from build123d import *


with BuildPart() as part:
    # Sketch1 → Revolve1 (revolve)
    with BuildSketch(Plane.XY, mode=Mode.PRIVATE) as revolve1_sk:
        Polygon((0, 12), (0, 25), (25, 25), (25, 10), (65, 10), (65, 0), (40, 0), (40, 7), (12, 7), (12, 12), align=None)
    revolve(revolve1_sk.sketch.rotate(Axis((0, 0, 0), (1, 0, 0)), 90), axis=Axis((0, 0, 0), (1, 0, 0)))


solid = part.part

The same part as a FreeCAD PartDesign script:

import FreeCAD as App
import Part
import Sketcher
from FreeCAD import Vector


def add_polygon(sketch, points):
    """Adds a closed chain of lines whose ends are joined by coincident constraints."""
    first, n = sketch.GeometryCount, len(points)
    for a, b in zip(points, points[1:] + points[:1]):
        sketch.addGeometry(Part.LineSegment(App.Vector(*a, 0), App.Vector(*b, 0)), False)
    for i in range(n):
        sketch.addConstraint(Sketcher.Constraint("Coincident", first + i, 2, first + (i + 1) % n, 1))

doc = App.newDocument("Part")
body = doc.addObject("PartDesign::Body", "Body")

sketch1 = body.newObject("Sketcher::SketchObject", "Sketch")
sketch1.AttachmentSupport = (doc.getObject("XY_Plane"), [""])
sketch1.MapMode = "FlatFace"
add_polygon(sketch1, [(0, 25), (0, 12), (12, 12), (12, 7), (40, 7), (40, 0), (65, 0), (65, 10), (25, 10), (25, 25)])
sketch1.addConstraint(Sketcher.Constraint("Vertical", 0))
sketch1.addConstraint(Sketcher.Constraint("Horizontal", 1))
sketch1.addConstraint(Sketcher.Constraint("Vertical", 2))
sketch1.addConstraint(Sketcher.Constraint("Horizontal", 3))
sketch1.addConstraint(Sketcher.Constraint("Vertical", 4))
sketch1.addConstraint(Sketcher.Constraint("Horizontal", 5))
sketch1.addConstraint(Sketcher.Constraint("Vertical", 6))
sketch1.addConstraint(Sketcher.Constraint("Horizontal", 7))
sketch1.addConstraint(Sketcher.Constraint("Vertical", 8))
sketch1.addConstraint(Sketcher.Constraint("Horizontal", 9))
sketch1.addConstraint(Sketcher.Constraint("PointOnObject", 0, 2, -2))
sketch1.addConstraint(Sketcher.Constraint("PointOnObject", 4, 2, -1))
sketch1.addConstraint(Sketcher.Constraint("Equal", 5, 9))
sketch1.addConstraint(Sketcher.Constraint("DistanceX", 1, 1, 1, 2, 12.0))
sketch1.addConstraint(Sketcher.Constraint("DistanceX", 3, 1, 3, 2, 28.0))
sketch1.addConstraint(Sketcher.Constraint("DistanceX", 5, 1, 5, 2, 25.0))
sketch1.addConstraint(Sketcher.Constraint("DistanceY", 0, 2, 0, 1, 13.0))
sketch1.addConstraint(Sketcher.Constraint("DistanceY", 2, 2, 2, 1, 5.0))
sketch1.addConstraint(Sketcher.Constraint("DistanceY", 4, 2, 4, 1, 7.0))
sketch1.addConstraint(Sketcher.Constraint("DistanceY", 6, 1, 6, 2, 10.0))
revolution = body.newObject("PartDesign::Revolution", "Revolution")
revolution.Profile = sketch1
revolution.ReferenceAxis = (sketch1, ["H_Axis"])
revolution.Angle = 360

doc.recompute()
